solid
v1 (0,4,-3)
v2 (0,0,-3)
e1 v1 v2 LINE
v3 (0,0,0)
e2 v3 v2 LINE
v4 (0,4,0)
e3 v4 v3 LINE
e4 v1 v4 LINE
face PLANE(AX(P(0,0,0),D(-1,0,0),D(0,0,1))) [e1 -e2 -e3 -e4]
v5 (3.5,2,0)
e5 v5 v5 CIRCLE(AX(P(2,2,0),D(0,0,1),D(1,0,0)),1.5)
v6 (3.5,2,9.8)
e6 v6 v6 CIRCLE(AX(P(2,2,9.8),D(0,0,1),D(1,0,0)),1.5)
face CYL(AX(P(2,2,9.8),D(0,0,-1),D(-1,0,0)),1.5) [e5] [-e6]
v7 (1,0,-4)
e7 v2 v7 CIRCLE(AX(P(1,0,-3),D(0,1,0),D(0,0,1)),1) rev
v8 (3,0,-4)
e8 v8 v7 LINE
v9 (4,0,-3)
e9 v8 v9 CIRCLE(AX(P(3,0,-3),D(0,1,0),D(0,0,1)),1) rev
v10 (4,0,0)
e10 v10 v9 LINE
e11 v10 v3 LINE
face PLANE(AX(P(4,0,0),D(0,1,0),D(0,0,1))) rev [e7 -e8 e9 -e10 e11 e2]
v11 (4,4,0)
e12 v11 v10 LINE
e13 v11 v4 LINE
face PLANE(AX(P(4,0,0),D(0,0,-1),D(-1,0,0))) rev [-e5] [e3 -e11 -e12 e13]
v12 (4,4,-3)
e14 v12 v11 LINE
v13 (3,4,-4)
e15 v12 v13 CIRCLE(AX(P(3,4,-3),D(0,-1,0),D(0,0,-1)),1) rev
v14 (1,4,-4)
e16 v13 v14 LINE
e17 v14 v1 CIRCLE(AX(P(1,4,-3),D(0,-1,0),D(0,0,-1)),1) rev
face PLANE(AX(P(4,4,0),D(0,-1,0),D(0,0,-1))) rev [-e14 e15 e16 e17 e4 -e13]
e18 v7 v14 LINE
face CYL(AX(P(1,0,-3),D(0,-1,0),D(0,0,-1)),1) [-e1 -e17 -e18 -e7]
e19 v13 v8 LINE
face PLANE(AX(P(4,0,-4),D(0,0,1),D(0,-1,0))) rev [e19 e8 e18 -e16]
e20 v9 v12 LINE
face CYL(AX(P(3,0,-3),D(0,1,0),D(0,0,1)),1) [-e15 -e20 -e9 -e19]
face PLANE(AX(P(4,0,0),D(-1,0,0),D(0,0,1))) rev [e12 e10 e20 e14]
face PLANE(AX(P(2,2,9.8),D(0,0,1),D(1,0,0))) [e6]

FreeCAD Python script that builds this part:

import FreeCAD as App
import Part
import Sketcher


def edges_at(feature, points):
    """Names of the edges that pass closest to the given points."""
    edges = feature.Shape.Edges
    near = lambda p: min(range(len(edges)), key=lambda i: edges[i].distToShape(Part.Vertex(*p))[0])
    return sorted({f"Edge{near(p) + 1}" for p in points})


def add_polygon(sketch, points):
    """Adds a closed chain of lines whose ends are joined by coincident constraints."""
    first, n = sketch.GeometryCount, len(points)
    for a, b in zip(points, points[1:] + points[:1]):
        sketch.addGeometry(Part.LineSegment(App.Vector(*a, 0), App.Vector(*b, 0)), False)
    for i in range(n):
        sketch.addConstraint(Sketcher.Constraint("Coincident", first + i, 2, first + (i + 1) % n, 1))

doc = App.newDocument("Part")
body = doc.addObject("PartDesign::Body", "Body")

sketch1 = body.newObject("Sketcher::SketchObject", "Sketch")
sketch1.AttachmentSupport = (doc.getObject("YZ_Plane"), [""])
sketch1.MapMode = "FlatFace"
add_polygon(sketch1, [(4, 0), (0, 0), (0, -4), (4, -4)])
sketch1.addConstraint([
    Sketcher.Constraint("Horizontal", 0),
    Sketcher.Constraint("Vertical", 1),
    Sketcher.Constraint("Horizontal", 2),
    Sketcher.Constraint("Vertical", 3),
    Sketcher.Constraint("Coincident", 0, 2, -1, 1),
    Sketcher.Constraint("Equal", 2, 1),
    Sketcher.Constraint("DistanceX", 0, 2, 0, 1, 4.0),
])
pad1 = body.newObject("PartDesign::Pad", "Pad")
pad1.Profile = sketch1
pad1.Length = 4
doc.recompute()

fillet = body.newObject("PartDesign::Fillet", "Fillet")
fillet.Base = (pad1, edges_at(pad1, [(4, 2, -4), (0, 2, -4)]))
fillet.Radius = 1

sketch2 = body.newObject("Sketcher::SketchObject", "Sketch001")
sketch2.AttachmentSupport = (doc.getObject("XY_Plane"), [""])
sketch2.MapMode = "FlatFace"
sketch2.addGeometry(Part.Circle(App.Vector(2, 2, 0), App.Vector(0, 0, 1), 1.5), False)
sketch2.addConstraint([
    Sketcher.Constraint("Diameter", 0, 3.0),
    Sketcher.Constraint("DistanceX", -1, 1, 0, 3, 2.0),
    Sketcher.Constraint("DistanceY", -1, 1, 0, 3, 2.0),
])
pad2 = body.newObject("PartDesign::Pad", "Pad001")
pad2.Profile = sketch2
pad2.Length = 9.8

doc.recompute()
